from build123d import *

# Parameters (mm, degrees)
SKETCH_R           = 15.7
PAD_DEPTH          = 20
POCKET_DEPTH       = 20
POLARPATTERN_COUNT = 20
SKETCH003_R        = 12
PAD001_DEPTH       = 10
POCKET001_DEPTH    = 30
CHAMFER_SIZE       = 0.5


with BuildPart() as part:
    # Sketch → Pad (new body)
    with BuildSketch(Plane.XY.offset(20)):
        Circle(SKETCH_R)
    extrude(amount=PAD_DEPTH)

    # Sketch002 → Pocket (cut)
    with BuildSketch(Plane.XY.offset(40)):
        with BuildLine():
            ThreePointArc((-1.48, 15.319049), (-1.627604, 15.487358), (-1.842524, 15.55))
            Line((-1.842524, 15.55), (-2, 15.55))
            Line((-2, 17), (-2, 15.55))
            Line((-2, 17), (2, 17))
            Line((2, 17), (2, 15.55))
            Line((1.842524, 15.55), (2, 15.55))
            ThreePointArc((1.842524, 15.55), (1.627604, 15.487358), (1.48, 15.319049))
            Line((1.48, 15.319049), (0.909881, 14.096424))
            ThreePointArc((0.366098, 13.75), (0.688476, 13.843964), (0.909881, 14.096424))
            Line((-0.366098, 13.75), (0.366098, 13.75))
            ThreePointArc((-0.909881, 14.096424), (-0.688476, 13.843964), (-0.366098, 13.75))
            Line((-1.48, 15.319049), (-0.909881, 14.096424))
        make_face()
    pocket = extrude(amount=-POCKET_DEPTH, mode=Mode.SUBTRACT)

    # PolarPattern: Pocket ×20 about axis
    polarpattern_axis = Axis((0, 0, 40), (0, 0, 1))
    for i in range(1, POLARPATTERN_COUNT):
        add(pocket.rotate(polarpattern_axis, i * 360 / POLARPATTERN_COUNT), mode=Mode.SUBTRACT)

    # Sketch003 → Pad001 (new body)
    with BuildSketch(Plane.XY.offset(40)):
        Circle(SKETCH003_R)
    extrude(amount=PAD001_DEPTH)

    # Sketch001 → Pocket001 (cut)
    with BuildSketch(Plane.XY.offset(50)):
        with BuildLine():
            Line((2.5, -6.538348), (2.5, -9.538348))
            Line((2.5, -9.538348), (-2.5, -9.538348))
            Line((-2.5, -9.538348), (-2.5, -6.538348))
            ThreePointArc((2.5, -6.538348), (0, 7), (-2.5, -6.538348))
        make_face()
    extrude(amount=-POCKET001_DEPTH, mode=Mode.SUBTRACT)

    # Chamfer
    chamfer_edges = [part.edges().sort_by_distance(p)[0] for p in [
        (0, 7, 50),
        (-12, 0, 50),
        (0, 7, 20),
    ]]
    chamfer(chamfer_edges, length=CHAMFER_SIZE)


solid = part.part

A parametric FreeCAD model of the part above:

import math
import FreeCAD as App
import Part
import Sketcher
Q = App.Units.Quantity


def edges_at(feature, points):
    """Names of the edges that pass closest to the given points."""
    edges = feature.Shape.Edges
    near = lambda p: min(range(len(edges)), key=lambda i: edges[i].distToShape(Part.Vertex(*p))[0])
    return sorted({f"Edge{near(p) + 1}" for p in points})

doc = App.newDocument("Part")
body = doc.addObject("PartDesign::Body", "Body")

# Sketch on XY plane
sketch1 = body.newObject("Sketcher::SketchObject", "Sketch")
sketch1.AttachmentSupport = (doc.getObject("XY_Plane"), [""])
sketch1.MapMode = "FlatFace"
sketch1.AttachmentOffset = App.Placement(App.Vector(0, 0, 20), App.Rotation())
sketch1.addGeometry(Part.Circle(App.Vector(0, 0, 0), App.Vector(0, 0, 1), 16), False)
sketch1.addConstraint([
    Sketcher.Constraint("Coincident", 0, 3, -1, 1),
    Sketcher.Constraint("Diameter", 0, 31.4),
])
pad1 = body.newObject("PartDesign::Pad", "Pad")
pad1.Profile = sketch1
pad1.Length = 20

# Sketch on XY plane
sketch2 = body.newObject("Sketcher::SketchObject", "Sketch001")
sketch2.AttachmentSupport = (doc.getObject("XY_Plane"), [""])
sketch2.MapMode = "FlatFace"
sketch2.AttachmentOffset = App.Placement(App.Vector(0, 0, 40), App.Rotation())
sketch2.addGeometry([
    Part.ArcOfCircle(Part.Circle(App.Vector(-1.84, 15.15, 0), App.Vector(0, 0, 1), 0.4), math.radians(25), math.radians(90)),  # 0
    Part.LineSegment(App.Vector(-1.48, 15.32, 0), App.Vector(-0.91, 14.1, 0)),  # 1
    Part.ArcOfCircle(Part.Circle(App.Vector(-0.37, 14.35, 0), App.Vector(0, 0, 1), 0.6), math.radians(-155), math.radians(-90)),  # 2
    Part.LineSegment(App.Vector(-0.37, 13.75, 0), App.Vector(0.37, 13.75, 0)),  # 3
    Part.ArcOfCircle(Part.Circle(App.Vector(0.37, 14.35, 0), App.Vector(0, 0, 1), 0.6), math.radians(-90), math.radians(-25)),  # 4
    Part.LineSegment(App.Vector(0.91, 14.1, 0), App.Vector(1.48, 15.32, 0)),  # 5
    Part.ArcOfCircle(Part.Circle(App.Vector(1.84, 15.15, 0), App.Vector(0, 0, 1), 0.4), math.radians(90), math.radians(155)),  # 6
    Part.LineSegment(App.Vector(1.84, 15.55, 0), App.Vector(2, 15.55, 0)),  # 7
    Part.LineSegment(App.Vector(2, 15.55, 0), App.Vector(2, 17, 0)),  # 8
    Part.LineSegment(App.Vector(2, 17, 0), App.Vector(-2, 17, 0)),  # 9
    Part.LineSegment(App.Vector(-2, 17, 0), App.Vector(-2, 15.55, 0)),  # 10
    Part.LineSegment(App.Vector(-2, 15.55, 0), App.Vector(-1.84, 15.55, 0)),  # 11
], False)
sketch2.addConstraint([
    Sketcher.Constraint("Tangent", 0, 1, 1, 1),
    Sketcher.Constraint("Coincident", 1, 2, 2, 1),
    Sketcher.Constraint("Tangent", 2, 2, 3, 1),
    Sketcher.Constraint("Tangent", 3, 2, 4, 1),
    Sketcher.Constraint("Coincident", 4, 2, 5, 1),
    Sketcher.Constraint("Tangent", 5, 2, 6, 2),
    Sketcher.Constraint("Coincident", 6, 1, 7, 1),
    Sketcher.Constraint("Coincident", 7, 2, 8, 1),
    Sketcher.Constraint("Coincident", 8, 2, 9, 1),
    Sketcher.Constraint("Coincident", 9, 2, 10, 1),
    Sketcher.Constraint("Coincident", 10, 2, 11, 1),
    Sketcher.Constraint("Coincident", 11, 2, 0, 2),
    Sketcher.Constraint("Horizontal", 3),
    Sketcher.Constraint("Horizontal", 7),
    Sketcher.Constraint("Vertical", 8),
    Sketcher.Constraint("Horizontal", 9),
    Sketcher.Constraint("Vertical", 10),
    Sketcher.Constraint("Horizontal", 11),
    Sketcher.Constraint("Equal", 2, 4),
    Sketcher.Constraint("Equal", 0, 6),
    Sketcher.Constraint("Symmetric", 0, 3, 6, 3, -2),
    Sketcher.Constraint("Symmetric", 1, 2, 4, 2, -2),
    Sketcher.Constraint("Equal", 7, 11),
    Sketcher.Constraint("Radius", 2, 0.600002),
    Sketcher.Constraint("DistanceX", 9, 2, 9, 1, 4.0),
    Sketcher.Constraint("Angle", 1, Q("-65.000015 deg")),
    Sketcher.Constraint("DistanceX", -1, 1, 7, 2, 2.0),
    Sketcher.Constraint("DistanceY", -1, 1, 8, 2, 17.0),
    Sketcher.Constraint("DistanceY", 8, 1, 8, 2, 1.45),
    Sketcher.Constraint("DistanceY", 2, 3, 0, 3, 0.8),
    Sketcher.Constraint("DistanceY", 4, 3, 6, 1, 1.199998),
    Sketcher.Constraint("DistanceX", 0, 1, -1, 1, 1.48),
    Sketcher.Constraint("DistanceX", 7, 1, 7, 2, 0.157476),
    Sketcher.Constraint("DistanceX", 1, 2, -1, 1, 0.909881),
])
pocket1 = body.newObject("PartDesign::Pocket", "Pocket")
pocket1.Profile = sketch2
pocket1.Length = 20
doc.recompute()

polarpattern = body.newObject("PartDesign::PolarPattern", "PolarPattern")
polarpattern.Originals = [pocket1]
polarpattern.Axis = (doc.getObject("Z_Axis"), [""])
polarpattern.Angle = 360
polarpattern.Occurrences = 20
body.Tip = polarpattern

# Sketch on XY plane
sketch3 = body.newObject("Sketcher::SketchObject", "Sketch002")
sketch3.AttachmentSupport = (doc.getObject("XY_Plane"), [""])
sketch3.MapMode = "FlatFace"
sketch3.AttachmentOffset = App.Placement(App.Vector(0, 0, 40), App.Rotation())
sketch3.addGeometry(Part.Circle(App.Vector(0, 0, 0), App.Vector(0, 0, 1), 12), False)
sketch3.addConstraint([
    Sketcher.Constraint("Coincident", 0, 3, -1, 1),
    Sketcher.Constraint("Diameter", 0, 24.0),
])
pad2 = body.newObject("PartDesign::Pad", "Pad001")
pad2.Profile = sketch3
pad2.Length = 10

# Sketch on XY plane
sketch4 = body.newObject("Sketcher::SketchObject", "Sketch003")
sketch4.AttachmentSupport = (doc.getObject("XY_Plane"), [""])
sketch4.MapMode = "FlatFace"
sketch4.AttachmentOffset = App.Placement(App.Vector(0, 0, 50), App.Rotation())
sketch4.addGeometry([
    Part.LineSegment(App.Vector(2.5, -9.5, 0), App.Vector(2.5, -6.5, 0)),
    Part.ArcOfCircle(Part.Circle(App.Vector(0, 0, 0), App.Vector(0, 0, 1), 7), math.radians(-69), math.radians(249)),
    Part.LineSegment(App.Vector(-2.5, -6.5, 0), App.Vector(-2.5, -9.5, 0)),
    Part.LineSegment(App.Vector(-2.5, -9.5, 0), App.Vector(2.5, -9.5, 0)),
], False)
sketch4.addConstraint([
    Sketcher.Constraint("Coincident", 0, 2, 1, 1),
    Sketcher.Constraint("Coincident", 1, 2, 2, 1),
    Sketcher.Constraint("Coincident", 2, 2, 3, 1),
    Sketcher.Constraint("Coincident", 3, 2, 0, 1),
    Sketcher.Constraint("Vertical", 0),
    Sketcher.Constraint("Vertical", 2),
    Sketcher.Constraint("Horizontal", 3),
    Sketcher.Constraint("Coincident", 1, 3, -1, 1),
    Sketcher.Constraint("Horizontal", 0, 2, 1, 2),
    Sketcher.Constraint("Radius", 1, 7.0),
    Sketcher.Constraint("DistanceX", 3, 1, 3, 2, 5.0),
    Sketcher.Constraint("DistanceY", 0, 1, 0, 2, 3.0),
])
pocket2 = body.newObject("PartDesign::Pocket", "Pocket001")
pocket2.Profile = sketch4
pocket2.Length = 30
doc.recompute()

chamfer = body.newObject("PartDesign::Chamfer", "Chamfer")
chamfer.Base = (pocket2, edges_at(pocket2, [(0, 7, 50), (-12, 0, 50), (0, 7, 20)]))
chamfer.Size = 0.5

doc.recompute()
